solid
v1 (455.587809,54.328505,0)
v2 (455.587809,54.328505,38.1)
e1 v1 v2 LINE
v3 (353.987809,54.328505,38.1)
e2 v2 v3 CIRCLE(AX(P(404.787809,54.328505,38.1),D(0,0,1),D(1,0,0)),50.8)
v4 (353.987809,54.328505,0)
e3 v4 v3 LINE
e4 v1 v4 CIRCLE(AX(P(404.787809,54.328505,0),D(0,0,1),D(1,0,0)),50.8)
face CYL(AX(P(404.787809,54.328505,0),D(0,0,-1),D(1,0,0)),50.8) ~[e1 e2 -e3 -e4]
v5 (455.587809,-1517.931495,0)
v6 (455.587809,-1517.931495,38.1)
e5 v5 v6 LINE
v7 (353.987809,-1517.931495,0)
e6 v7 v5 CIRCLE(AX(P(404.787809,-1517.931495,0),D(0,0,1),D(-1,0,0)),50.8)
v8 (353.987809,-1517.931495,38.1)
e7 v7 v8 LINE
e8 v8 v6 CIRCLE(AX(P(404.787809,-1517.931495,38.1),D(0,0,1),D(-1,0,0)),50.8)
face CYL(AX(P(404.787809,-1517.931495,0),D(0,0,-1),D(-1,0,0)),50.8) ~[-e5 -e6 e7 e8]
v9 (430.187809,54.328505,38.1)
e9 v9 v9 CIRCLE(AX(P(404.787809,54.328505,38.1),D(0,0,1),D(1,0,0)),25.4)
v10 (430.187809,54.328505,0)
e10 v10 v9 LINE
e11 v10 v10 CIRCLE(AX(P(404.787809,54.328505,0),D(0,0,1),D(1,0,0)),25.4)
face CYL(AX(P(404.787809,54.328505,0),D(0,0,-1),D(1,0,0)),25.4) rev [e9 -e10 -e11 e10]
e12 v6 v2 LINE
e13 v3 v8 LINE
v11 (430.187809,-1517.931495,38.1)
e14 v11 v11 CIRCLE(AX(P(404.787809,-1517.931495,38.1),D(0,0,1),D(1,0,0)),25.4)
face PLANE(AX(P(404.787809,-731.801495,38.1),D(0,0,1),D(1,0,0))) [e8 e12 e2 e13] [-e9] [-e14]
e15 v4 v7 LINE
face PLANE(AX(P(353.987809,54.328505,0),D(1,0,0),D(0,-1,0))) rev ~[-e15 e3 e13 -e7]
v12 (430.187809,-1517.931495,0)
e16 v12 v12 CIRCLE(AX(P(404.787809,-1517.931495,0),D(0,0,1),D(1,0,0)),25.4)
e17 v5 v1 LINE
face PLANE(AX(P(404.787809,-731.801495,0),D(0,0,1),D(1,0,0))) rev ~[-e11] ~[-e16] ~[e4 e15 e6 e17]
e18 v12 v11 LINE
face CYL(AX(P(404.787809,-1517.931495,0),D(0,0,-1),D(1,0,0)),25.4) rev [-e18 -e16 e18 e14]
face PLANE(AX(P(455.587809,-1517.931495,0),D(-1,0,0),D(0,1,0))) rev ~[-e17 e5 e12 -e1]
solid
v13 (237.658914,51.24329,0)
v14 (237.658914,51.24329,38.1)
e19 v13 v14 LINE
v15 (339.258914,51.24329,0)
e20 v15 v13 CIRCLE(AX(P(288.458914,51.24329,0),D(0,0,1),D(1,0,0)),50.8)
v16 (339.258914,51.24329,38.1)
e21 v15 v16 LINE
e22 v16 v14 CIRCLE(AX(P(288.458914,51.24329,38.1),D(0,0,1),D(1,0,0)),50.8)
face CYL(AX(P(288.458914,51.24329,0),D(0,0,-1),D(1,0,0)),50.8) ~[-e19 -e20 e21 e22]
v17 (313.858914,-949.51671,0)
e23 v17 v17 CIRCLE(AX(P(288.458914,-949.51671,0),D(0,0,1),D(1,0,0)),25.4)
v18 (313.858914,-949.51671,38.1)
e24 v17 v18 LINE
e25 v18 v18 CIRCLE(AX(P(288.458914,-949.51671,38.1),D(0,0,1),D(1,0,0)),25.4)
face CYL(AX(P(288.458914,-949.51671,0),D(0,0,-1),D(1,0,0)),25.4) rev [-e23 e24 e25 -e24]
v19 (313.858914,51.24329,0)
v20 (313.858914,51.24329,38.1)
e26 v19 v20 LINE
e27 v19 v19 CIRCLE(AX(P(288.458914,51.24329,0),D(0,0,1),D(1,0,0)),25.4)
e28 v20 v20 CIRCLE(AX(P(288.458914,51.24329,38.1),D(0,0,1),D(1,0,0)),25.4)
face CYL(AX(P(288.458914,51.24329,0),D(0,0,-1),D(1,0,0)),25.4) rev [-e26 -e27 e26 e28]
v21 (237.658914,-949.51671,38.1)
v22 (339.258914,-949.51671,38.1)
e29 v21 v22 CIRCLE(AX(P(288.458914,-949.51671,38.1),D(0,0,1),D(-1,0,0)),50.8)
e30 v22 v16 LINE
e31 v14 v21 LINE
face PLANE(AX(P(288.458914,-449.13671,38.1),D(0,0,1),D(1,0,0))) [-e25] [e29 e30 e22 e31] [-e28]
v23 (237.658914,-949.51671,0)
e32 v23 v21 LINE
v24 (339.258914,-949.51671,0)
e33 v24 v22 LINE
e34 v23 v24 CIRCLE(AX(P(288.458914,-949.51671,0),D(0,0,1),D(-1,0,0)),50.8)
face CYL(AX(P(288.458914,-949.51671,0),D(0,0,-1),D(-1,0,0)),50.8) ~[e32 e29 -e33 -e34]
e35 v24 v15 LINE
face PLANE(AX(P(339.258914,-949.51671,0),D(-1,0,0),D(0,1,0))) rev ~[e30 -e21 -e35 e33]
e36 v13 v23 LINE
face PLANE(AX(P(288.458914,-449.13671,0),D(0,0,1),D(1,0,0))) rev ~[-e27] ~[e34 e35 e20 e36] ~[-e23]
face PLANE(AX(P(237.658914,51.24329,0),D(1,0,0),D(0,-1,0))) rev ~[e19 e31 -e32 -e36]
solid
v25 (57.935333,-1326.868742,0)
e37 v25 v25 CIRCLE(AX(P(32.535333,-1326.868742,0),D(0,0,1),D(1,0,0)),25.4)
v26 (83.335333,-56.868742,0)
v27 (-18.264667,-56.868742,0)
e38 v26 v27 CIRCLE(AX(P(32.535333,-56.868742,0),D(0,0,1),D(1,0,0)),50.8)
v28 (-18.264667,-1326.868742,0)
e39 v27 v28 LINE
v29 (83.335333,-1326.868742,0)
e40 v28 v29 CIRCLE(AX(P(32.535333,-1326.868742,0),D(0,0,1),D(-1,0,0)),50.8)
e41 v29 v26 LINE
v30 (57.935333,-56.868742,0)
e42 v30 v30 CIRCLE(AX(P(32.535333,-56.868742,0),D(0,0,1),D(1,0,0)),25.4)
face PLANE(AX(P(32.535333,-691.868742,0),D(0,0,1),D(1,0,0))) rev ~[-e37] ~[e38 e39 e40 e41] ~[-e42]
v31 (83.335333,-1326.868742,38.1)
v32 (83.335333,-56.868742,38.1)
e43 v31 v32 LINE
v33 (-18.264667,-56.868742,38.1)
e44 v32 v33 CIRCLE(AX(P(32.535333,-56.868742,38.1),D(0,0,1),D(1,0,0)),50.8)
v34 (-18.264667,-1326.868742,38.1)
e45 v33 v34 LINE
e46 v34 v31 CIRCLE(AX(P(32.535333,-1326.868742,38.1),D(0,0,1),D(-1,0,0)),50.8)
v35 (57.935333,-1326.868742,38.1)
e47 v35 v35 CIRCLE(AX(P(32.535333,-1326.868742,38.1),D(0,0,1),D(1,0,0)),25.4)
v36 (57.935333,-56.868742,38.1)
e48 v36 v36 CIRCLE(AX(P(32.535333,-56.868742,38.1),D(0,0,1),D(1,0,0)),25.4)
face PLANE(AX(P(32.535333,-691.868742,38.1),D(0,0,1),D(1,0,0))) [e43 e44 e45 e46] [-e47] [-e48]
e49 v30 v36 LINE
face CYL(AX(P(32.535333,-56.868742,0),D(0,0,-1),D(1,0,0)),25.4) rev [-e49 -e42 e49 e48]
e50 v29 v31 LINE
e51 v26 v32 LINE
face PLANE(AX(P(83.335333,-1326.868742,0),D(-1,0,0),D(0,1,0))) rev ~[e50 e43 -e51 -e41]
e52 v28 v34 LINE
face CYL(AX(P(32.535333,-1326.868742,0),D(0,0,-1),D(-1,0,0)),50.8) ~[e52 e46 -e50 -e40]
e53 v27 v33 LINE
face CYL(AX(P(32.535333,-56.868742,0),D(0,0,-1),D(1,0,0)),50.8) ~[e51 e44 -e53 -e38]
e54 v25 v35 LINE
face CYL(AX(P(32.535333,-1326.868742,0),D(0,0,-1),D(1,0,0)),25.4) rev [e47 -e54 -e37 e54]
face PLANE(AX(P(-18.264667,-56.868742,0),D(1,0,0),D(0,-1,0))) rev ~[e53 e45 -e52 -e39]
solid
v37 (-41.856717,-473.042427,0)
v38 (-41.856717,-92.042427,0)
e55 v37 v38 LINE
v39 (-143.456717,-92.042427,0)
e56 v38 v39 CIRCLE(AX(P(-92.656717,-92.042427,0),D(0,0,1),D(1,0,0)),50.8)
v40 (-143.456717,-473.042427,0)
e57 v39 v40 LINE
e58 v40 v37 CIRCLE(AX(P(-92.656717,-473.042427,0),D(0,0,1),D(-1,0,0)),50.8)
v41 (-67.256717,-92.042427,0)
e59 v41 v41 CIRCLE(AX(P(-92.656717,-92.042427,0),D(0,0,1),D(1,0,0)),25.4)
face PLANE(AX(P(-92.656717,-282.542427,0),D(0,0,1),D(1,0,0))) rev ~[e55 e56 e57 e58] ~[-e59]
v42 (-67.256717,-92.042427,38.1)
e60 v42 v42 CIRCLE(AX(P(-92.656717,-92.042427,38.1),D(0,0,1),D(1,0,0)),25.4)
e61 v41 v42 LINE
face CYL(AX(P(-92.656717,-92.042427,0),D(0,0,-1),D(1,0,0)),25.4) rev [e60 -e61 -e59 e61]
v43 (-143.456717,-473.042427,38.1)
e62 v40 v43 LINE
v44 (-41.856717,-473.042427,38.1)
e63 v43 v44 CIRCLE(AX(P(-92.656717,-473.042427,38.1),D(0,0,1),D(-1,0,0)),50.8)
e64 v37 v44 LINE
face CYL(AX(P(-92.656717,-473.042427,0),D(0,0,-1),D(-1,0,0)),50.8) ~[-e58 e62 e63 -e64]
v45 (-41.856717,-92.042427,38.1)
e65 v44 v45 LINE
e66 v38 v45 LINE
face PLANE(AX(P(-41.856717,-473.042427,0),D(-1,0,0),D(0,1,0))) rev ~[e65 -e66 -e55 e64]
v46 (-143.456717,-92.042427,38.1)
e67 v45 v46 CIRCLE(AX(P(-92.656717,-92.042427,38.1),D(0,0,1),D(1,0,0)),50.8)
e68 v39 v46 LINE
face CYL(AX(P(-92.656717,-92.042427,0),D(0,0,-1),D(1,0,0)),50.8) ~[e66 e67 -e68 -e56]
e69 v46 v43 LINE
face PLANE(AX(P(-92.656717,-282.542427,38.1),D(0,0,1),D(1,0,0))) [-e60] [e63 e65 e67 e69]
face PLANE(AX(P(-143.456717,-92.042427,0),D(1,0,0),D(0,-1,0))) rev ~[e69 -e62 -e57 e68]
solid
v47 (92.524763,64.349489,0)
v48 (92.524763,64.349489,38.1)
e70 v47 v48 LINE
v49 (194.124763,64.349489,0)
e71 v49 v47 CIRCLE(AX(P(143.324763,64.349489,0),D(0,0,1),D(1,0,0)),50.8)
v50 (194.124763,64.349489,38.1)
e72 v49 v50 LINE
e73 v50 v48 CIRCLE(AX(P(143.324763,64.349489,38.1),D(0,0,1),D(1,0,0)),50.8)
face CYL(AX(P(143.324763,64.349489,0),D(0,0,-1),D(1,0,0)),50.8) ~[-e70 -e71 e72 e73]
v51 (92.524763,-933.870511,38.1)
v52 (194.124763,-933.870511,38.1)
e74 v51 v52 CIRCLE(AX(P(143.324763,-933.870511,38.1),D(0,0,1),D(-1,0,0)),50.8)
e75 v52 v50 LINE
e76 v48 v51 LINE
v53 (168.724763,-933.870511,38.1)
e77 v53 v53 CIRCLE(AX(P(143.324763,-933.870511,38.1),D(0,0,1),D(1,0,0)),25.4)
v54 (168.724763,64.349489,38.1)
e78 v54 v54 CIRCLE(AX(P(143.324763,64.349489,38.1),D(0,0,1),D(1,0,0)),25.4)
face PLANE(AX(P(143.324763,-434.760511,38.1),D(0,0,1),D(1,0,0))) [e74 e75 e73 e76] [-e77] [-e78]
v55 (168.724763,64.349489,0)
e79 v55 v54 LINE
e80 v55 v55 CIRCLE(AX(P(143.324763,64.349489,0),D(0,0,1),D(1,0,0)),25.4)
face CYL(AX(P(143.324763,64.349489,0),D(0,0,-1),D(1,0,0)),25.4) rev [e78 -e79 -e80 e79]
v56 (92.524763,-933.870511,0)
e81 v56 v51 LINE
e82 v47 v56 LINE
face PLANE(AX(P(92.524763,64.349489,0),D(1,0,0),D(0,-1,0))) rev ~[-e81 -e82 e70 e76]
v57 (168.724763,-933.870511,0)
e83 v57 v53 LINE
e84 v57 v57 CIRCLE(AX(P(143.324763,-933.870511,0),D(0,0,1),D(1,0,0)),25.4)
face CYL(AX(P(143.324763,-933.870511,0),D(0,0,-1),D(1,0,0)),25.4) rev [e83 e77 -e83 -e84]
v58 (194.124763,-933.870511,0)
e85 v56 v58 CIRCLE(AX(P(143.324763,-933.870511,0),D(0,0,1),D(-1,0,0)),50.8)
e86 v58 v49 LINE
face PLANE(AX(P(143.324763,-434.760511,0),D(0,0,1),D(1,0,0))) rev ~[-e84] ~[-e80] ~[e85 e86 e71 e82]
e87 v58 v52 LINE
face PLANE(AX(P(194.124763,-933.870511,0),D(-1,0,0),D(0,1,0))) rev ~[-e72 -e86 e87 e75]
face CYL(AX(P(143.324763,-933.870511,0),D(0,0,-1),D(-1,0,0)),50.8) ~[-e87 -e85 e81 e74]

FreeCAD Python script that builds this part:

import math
import FreeCAD as App
import Part
import Sketcher

V = App.Vector
Q = App.Units.Quantity

doc = App.newDocument("Part")
body = doc.addObject("PartDesign::Body", "Body")
body.AllowCompound = True

# Sketch on XY plane
sketch1 = body.newObject("Sketcher::SketchObject", "Sketch")
sketch1.AttachmentSupport = (doc.getObject("XY_Plane"), [""])
sketch1.MapMode = "FlatFace"
sketch1.addGeometry(Part.LineSegment(V(-143, -92, 0), V(-143, -473, 0)), False)
sketch1.addGeometry(Part.ArcOfCircle(Part.Circle(V(-93, -473, 0), V(0, 0, 1), 51), math.radians(180), math.radians(360)), False)
sketch1.addGeometry(Part.LineSegment(V(-42, -473, 0), V(-42, -92, 0)), False)
sketch1.addGeometry(Part.ArcOfCircle(Part.Circle(V(-93, -92, 0), V(0, 0, 1), 51), math.radians(0), math.radians(180)), False)
sketch1.addGeometry(Part.Circle(V(-93, -92, 0), V(0, 0, 1), 25), False)
sketch1.addGeometry(Part.LineSegment(V(-18, -57, 0), V(-18, -1327, 0)), False)
sketch1.addGeometry(Part.ArcOfCircle(Part.Circle(V(33, -1327, 0), V(0, 0, 1), 51), math.radians(180), math.radians(360)), False)
sketch1.addGeometry(Part.LineSegment(V(83, -1327, 0), V(83, -57, 0)), False)
sketch1.addGeometry(Part.ArcOfCircle(Part.Circle(V(33, -57, 0), V(0, 0, 1), 51), math.radians(0), math.radians(180)), False)
sketch1.addGeometry(Part.Circle(V(33, -1327, 0), V(0, 0, 1), 25), False)
sketch1.addGeometry(Part.Circle(V(33, -57, 0), V(0, 0, 1), 25), False)
sketch1.addGeometry(Part.LineSegment(V(93, 64, 0), V(93, -934, 0)), False)
sketch1.addGeometry(Part.ArcOfCircle(Part.Circle(V(143, -934, 0), V(0, 0, 1), 51), math.radians(180), math.radians(360)), False)
sketch1.addGeometry(Part.LineSegment(V(194, -934, 0), V(194, 64, 0)), False)
sketch1.addGeometry(Part.ArcOfCircle(Part.Circle(V(143, 64, 0), V(0, 0, 1), 51), math.radians(0), math.radians(180)), False)
sketch1.addGeometry(Part.Circle(V(143, -934, 0), V(0, 0, 1), 25), False)
sketch1.addGeometry(Part.Circle(V(143, 64, 0), V(0, 0, 1), 25), False)
sketch1.addGeometry(Part.LineSegment(V(238, 51, 0), V(238, -950, 0)), False)
sketch1.addGeometry(Part.ArcOfCircle(Part.Circle(V(288, -950, 0), V(0, 0, 1), 51), math.radians(180), math.radians(360)), False)
sketch1.addGeometry(Part.LineSegment(V(339, -950, 0), V(339, 51, 0)), False)
sketch1.addGeometry(Part.ArcOfCircle(Part.Circle(V(288, 51, 0), V(0, 0, 1), 51), math.radians(0), math.radians(180)), False)
sketch1.addGeometry(Part.Circle(V(288, -950, 0), V(0, 0, 1), 25), False)
sketch1.addGeometry(Part.Circle(V(288, 51, 0), V(0, 0, 1), 25), False)
sketch1.addGeometry(Part.LineSegment(V(354, 54, 0), V(354, -1518, 0)), False)
sketch1.addGeometry(Part.ArcOfCircle(Part.Circle(V(405, -1518, 0), V(0, 0, 1), 51), math.radians(180), math.radians(360)), False)
sketch1.addGeometry(Part.LineSegment(V(456, -1518, 0), V(456, 54, 0)), False)
sketch1.addGeometry(Part.ArcOfCircle(Part.Circle(V(405, 54, 0), V(0, 0, 1), 51), math.radians(0), math.radians(180)), False)
sketch1.addGeometry(Part.Circle(V(405, -1518, 0), V(0, 0, 1), 25), False)
sketch1.addGeometry(Part.Circle(V(405, 54, 0), V(0, 0, 1), 25), False)
sketch1.addConstraint(Sketcher.Constraint("Tangent", 0, 2, 1, 1))
sketch1.addConstraint(Sketcher.Constraint("Tangent", 1, 2, 2, 1))
sketch1.addConstraint(Sketcher.Constraint("Tangent", 2, 2, 3, 1))
sketch1.addConstraint(Sketcher.Constraint("Tangent", 3, 2, 0, 1))
sketch1.addConstraint(Sketcher.Constraint("Tangent", 5, 2, 6, 1))
sketch1.addConstraint(Sketcher.Constraint("Tangent", 6, 2, 7, 1))
sketch1.addConstraint(Sketcher.Constraint("Tangent", 7, 2, 8, 1))
sketch1.addConstraint(Sketcher.Constraint("Tangent", 8, 2, 5, 1))
sketch1.addConstraint(Sketcher.Constraint("Tangent", 11, 2, 12, 1))
sketch1.addConstraint(Sketcher.Constraint("Tangent", 12, 2, 13, 1))
sketch1.addConstraint(Sketcher.Constraint("Tangent", 13, 2, 14, 1))
sketch1.addConstraint(Sketcher.Constraint("Tangent", 14, 2, 11, 1))
sketch1.addConstraint(Sketcher.Constraint("Tangent", 17, 2, 18, 1))
sketch1.addConstraint(Sketcher.Constraint("Tangent", 18, 2, 19, 1))
sketch1.addConstraint(Sketcher.Constraint("Tangent", 19, 2, 20, 1))
sketch1.addConstraint(Sketcher.Constraint("Tangent", 20, 2, 17, 1))
sketch1.addConstraint(Sketcher.Constraint("Tangent", 23, 2, 24, 1))
sketch1.addConstraint(Sketcher.Constraint("Tangent", 24, 2, 25, 1))
sketch1.addConstraint(Sketcher.Constraint("Tangent", 25, 2, 26, 1))
sketch1.addConstraint(Sketcher.Constraint("Tangent", 26, 2, 23, 1))
sketch1.addConstraint(Sketcher.Constraint("Vertical", 0))
sketch1.addConstraint(Sketcher.Constraint("Vertical", 2))
sketch1.addConstraint(Sketcher.Constraint("Vertical", 5))
sketch1.addConstraint(Sketcher.Constraint("Vertical", 7))
sketch1.addConstraint(Sketcher.Constraint("Vertical", 11))
sketch1.addConstraint(Sketcher.Constraint("Vertical", 13))
sketch1.addConstraint(Sketcher.Constraint("Vertical", 17))
sketch1.addConstraint(Sketcher.Constraint("Vertical", 19))
sketch1.addConstraint(Sketcher.Constraint("Vertical", 23))
sketch1.addConstraint(Sketcher.Constraint("Vertical", 25))
sketch1.addConstraint(Sketcher.Constraint("Coincident", 4, 3, 3, 3))
sketch1.addConstraint(Sketcher.Constraint("Coincident", 9, 3, 6, 3))
sketch1.addConstraint(Sketcher.Constraint("Coincident", 10, 3, 8, 3))
sketch1.addConstraint(Sketcher.Constraint("Coincident", 15, 3, 12, 3))
sketch1.addConstraint(Sketcher.Constraint("Coincident", 16, 3, 14, 3))
sketch1.addConstraint(Sketcher.Constraint("Coincident", 21, 3, 18, 3))
sketch1.addConstraint(Sketcher.Constraint("Coincident", 22, 3, 20, 3))
sketch1.addConstraint(Sketcher.Constraint("Coincident", 27, 3, 24, 3))
sketch1.addConstraint(Sketcher.Constraint("Coincident", 28, 3, 26, 3))
sketch1.addConstraint(Sketcher.Constraint("Equal", 3, 6))
sketch1.addConstraint(Sketcher.Constraint("Equal", 4, 9))
sketch1.addConstraint(Sketcher.Constraint("Equal", 9, 10))
sketch1.addConstraint(Sketcher.Constraint("Equal", 8, 12))
sketch1.addConstraint(Sketcher.Constraint("Equal", 10, 15))
sketch1.addConstraint(Sketcher.Constraint("Equal", 15, 16))
sketch1.addConstraint(Sketcher.Constraint("Equal", 14, 18))
sketch1.addConstraint(Sketcher.Constraint("Equal", 16, 21))
sketch1.addConstraint(Sketcher.Constraint("Equal", 21, 22))
sketch1.addConstraint(Sketcher.Constraint("Equal", 20, 24))
sketch1.addConstraint(Sketcher.Constraint("Equal", 22, 27))
sketch1.addConstraint(Sketcher.Constraint("Equal", 27, 28))
sketch1.addConstraint(Sketcher.Constraint("Diameter", 4, Q("2 in")))
sketch1.addConstraint(Sketcher.Constraint("Radius", 1, Q("2 in")))
sketch1.addConstraint(Sketcher.Constraint("DistanceY", 0, 2, 0, 1, Q("15 in")))
sketch1.addConstraint(Sketcher.Constraint("DistanceY", 5, 2, 5, 1, Q("50 in")))
sketch1.addConstraint(Sketcher.Constraint("DistanceY", 11, 2, 11, 1, Q("39.3 in")))
sketch1.addConstraint(Sketcher.Constraint("DistanceY", 17, 2, 17, 1, Q("39.4 in")))
sketch1.addConstraint(Sketcher.Constraint("DistanceY", 23, 2, 23, 1, Q("61.9 in")))
sketch1.addConstraint(Sketcher.Constraint("DistanceY", 18, 3, 12, 3, Q("15.646199 mm")))
sketch1.addConstraint(Sketcher.Constraint("DistanceY", 8, 3, -1, 1, Q("56.868742 mm")))
sketch1.addConstraint(Sketcher.Constraint("DistanceY", 12, 3, -1, 1, Q("933.870511 mm")))
sketch1.addConstraint(Sketcher.Constraint("DistanceX", -1, 1, 24, 3, Q("404.787809 mm")))
sketch1.addConstraint(Sketcher.Constraint("DistanceX", 1, 3, 6, 3, Q("125.19205 mm")))
sketch1.addConstraint(Sketcher.Constraint("DistanceX", 6, 3, 12, 3, Q("110.78943 mm")))
sketch1.addConstraint(Sketcher.Constraint("DistanceX", 12, 3, 18, 3, Q("145.134151 mm")))
sketch1.addConstraint(Sketcher.Constraint("DistanceX", 1, 3, -1, 1, Q("92.656717 mm")))
sketch1.addConstraint(Sketcher.Constraint("DistanceY", 1, 3, -1, 1, Q("473.042427 mm")))
sketch1.addConstraint(Sketcher.Constraint("DistanceY", 24, 3, -1, 1, Q("1517.931495 mm")))
pad1 = body.newObject("PartDesign::Pad", "Pad")
pad1.Profile = sketch1
pad1.Length = Q("1.5 in")

doc.recompute()
